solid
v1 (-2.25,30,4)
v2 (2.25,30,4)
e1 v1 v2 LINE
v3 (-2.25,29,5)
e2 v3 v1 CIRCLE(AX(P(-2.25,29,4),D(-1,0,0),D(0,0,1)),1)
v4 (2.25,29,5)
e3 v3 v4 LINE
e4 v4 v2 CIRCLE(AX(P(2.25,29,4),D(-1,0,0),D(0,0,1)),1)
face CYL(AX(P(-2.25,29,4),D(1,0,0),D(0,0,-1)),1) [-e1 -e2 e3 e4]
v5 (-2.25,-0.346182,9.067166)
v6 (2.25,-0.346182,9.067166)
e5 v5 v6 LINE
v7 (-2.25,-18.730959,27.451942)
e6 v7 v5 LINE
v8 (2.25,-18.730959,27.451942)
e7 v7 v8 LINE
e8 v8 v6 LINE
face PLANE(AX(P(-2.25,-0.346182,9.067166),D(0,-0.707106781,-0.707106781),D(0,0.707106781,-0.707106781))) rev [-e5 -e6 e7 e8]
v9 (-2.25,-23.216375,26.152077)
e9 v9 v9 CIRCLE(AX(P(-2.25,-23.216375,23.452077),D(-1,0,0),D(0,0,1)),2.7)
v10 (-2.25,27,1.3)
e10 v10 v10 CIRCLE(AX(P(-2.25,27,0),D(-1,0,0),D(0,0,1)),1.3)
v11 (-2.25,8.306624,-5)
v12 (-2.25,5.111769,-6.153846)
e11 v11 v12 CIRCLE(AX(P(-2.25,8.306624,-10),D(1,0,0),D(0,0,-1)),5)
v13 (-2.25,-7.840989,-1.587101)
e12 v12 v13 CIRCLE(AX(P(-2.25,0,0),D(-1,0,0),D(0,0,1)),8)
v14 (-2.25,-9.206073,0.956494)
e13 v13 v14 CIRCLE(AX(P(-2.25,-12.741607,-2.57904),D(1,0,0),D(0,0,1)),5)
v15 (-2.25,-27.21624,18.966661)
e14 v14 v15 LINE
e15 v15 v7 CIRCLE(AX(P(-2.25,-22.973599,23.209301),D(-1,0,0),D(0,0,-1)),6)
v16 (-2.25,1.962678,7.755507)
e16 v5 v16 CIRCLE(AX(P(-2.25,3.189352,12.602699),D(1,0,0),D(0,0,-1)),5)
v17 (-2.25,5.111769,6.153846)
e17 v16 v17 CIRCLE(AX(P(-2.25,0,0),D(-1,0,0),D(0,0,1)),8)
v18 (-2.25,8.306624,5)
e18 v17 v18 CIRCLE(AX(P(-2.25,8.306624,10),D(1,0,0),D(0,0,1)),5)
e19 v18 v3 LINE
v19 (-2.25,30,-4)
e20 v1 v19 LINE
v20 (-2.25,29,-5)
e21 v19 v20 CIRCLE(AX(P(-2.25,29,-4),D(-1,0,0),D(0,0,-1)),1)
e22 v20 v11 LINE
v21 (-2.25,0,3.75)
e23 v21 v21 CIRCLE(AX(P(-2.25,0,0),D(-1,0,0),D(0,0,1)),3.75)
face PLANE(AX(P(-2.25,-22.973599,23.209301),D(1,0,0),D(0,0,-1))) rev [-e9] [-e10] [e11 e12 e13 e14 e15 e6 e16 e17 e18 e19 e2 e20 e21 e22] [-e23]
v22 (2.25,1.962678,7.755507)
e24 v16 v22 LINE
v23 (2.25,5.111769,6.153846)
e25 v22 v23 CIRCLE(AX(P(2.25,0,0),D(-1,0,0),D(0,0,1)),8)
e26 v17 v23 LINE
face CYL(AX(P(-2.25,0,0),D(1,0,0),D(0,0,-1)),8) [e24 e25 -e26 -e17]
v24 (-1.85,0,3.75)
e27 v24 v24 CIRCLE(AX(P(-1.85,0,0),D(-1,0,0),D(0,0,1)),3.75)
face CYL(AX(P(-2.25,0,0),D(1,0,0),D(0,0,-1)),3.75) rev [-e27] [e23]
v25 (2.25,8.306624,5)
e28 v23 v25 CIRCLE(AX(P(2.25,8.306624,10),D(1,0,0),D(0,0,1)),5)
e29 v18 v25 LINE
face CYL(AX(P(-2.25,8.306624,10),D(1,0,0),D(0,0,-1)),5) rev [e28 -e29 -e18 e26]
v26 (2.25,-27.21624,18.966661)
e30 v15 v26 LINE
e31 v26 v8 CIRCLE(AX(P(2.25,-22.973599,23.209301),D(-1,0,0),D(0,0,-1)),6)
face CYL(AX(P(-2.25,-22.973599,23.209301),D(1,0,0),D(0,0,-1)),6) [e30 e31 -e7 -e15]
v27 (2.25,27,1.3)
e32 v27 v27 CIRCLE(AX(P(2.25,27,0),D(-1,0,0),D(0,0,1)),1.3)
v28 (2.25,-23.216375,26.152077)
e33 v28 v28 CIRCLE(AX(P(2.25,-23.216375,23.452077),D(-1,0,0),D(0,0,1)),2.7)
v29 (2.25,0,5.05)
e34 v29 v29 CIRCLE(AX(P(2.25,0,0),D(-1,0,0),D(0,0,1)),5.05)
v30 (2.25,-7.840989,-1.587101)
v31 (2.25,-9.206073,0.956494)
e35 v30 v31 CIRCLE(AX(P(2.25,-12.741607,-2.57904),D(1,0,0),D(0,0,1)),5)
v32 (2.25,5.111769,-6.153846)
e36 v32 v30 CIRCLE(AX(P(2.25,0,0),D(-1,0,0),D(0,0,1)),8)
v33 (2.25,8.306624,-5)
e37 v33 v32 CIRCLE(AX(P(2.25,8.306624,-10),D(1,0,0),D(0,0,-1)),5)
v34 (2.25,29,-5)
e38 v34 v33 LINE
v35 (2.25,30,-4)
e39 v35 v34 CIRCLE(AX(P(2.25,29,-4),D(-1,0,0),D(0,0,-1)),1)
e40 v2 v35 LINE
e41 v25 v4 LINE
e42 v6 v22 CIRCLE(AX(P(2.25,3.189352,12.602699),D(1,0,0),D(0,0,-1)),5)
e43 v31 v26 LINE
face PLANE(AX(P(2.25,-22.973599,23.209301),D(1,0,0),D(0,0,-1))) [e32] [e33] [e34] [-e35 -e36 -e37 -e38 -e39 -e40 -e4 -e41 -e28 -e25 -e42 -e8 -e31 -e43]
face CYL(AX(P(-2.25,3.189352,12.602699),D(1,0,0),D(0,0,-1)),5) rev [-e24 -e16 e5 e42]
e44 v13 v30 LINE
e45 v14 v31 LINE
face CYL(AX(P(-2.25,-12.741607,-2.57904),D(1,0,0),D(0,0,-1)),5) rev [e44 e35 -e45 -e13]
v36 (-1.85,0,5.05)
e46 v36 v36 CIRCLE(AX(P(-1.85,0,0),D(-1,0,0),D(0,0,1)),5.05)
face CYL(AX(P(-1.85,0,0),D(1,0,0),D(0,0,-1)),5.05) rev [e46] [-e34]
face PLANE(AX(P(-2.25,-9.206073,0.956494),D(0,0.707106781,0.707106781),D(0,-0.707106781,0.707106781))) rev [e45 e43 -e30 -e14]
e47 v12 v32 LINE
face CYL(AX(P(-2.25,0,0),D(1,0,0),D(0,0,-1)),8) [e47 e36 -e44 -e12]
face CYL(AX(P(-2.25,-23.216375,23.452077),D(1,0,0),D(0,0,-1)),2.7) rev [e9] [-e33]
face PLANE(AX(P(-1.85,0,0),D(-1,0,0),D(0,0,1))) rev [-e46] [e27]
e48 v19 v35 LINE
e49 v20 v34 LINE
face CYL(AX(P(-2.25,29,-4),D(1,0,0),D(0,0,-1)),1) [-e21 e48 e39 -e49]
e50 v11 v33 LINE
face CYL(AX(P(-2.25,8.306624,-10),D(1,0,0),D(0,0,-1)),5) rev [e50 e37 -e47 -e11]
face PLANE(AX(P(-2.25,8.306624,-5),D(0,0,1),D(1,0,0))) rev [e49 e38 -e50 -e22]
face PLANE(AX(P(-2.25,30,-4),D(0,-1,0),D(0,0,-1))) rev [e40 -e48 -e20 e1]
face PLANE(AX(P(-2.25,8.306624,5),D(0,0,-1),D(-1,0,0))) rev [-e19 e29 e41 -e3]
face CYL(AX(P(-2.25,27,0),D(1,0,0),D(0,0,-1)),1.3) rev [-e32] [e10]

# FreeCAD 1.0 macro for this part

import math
import FreeCAD as App
import Part
import Sketcher

V = App.Vector
Q = App.Units.Quantity

doc = App.newDocument("Part")
params = doc.addObject("Spreadsheet::Sheet", "Params")
for row, (alias, value) in enumerate([
    ("sketch1_radius", "1 mm"),
    ("sketch1_radius2", "5 mm"),
    ("sketch1_radius3", "8 mm"),
    ("sketch1_radius4", "6 mm"),
    ("sketch1_diameter", "5.4 mm"),
    ("pad1_length", "4.5 mm"),
    ("sketch2_diameter", "10.1 mm"),
    ("pocket1_length", "4.1 mm"),
], start=1):
    params.set(f"A{row}", alias)
    params.set(f"B{row}", "=" + value)
    params.setAlias(f"B{row}", alias)

body = doc.addObject("PartDesign::Body", "Body")

sketch1 = body.newObject("Sketcher::SketchObject", "Sketch")
sketch1.AttachmentSupport = (doc.getObject("YZ_Plane"), [""])
sketch1.MapMode = "FlatFace"
sketch1.addGeometry(Part.LineSegment(V(30, 4, 0), V(30, -4, 0)), False)
sketch1.addGeometry(Part.ArcOfCircle(Part.Circle(V(29, -4, 0), V(0, 0, 1), 1), math.radians(-90), math.radians(0)), False)
sketch1.addGeometry(Part.LineSegment(V(29, -5, 0), V(8.3, -5, 0)), False)
sketch1.addGeometry(Part.ArcOfCircle(Part.Circle(V(8.3, -10, 0), V(0, 0, 1), 5), math.radians(90), math.radians(130)), False)
sketch1.addGeometry(Part.ArcOfCircle(Part.Circle(V(0, 0, 0), V(0, 0, 1), 8), math.radians(-169), math.radians(-50)), False)
sketch1.addGeometry(Part.ArcOfCircle(Part.Circle(V(-12.7, -2.6, 0), V(0, 0, 1), 5), math.radians(11), math.radians(45)), False)
sketch1.addGeometry(Part.LineSegment(V(-9.2, 1, 0), V(-27.2, 19, 0)), False)
sketch1.addGeometry(Part.ArcOfCircle(Part.Circle(V(-23, 23.2, 0), V(0, 0, 1), 6), math.radians(45), math.radians(225)), False)
sketch1.addGeometry(Part.LineSegment(V(-18.7, 27.5, 0), V(-0.3, 9.1, 0)), False)
sketch1.addGeometry(Part.ArcOfCircle(Part.Circle(V(3.2, 12.6, 0), V(0, 0, 1), 5), math.radians(-135), math.radians(-104)), False)
sketch1.addGeometry(Part.ArcOfCircle(Part.Circle(V(0, 0, 0), V(0, 0, 1), 8), math.radians(50), math.radians(76)), False)
sketch1.addGeometry(Part.ArcOfCircle(Part.Circle(V(8.3, 10, 0), V(0, 0, 1), 5), math.radians(-130), math.radians(-90)), False)
sketch1.addGeometry(Part.LineSegment(V(8.3, 5, 0), V(29, 5, 0)), False)
sketch1.addGeometry(Part.ArcOfCircle(Part.Circle(V(29, 4, 0), V(0, 0, 1), 1), math.radians(0), math.radians(90)), False)
sketch1.addGeometry(Part.Circle(V(-23.2, 23.5, 0), V(0, 0, 1), 2.7), False)
sketch1.addGeometry(Part.Circle(V(0, 0, 0), V(0, 0, 1), 3.8), False)
sketch1.addGeometry(Part.Circle(V(27, 0, 0), V(0, 0, 1), 1.3), False)
sketch1.addConstraint(Sketcher.Constraint("Tangent", 0, 2, 1, 2))
sketch1.addConstraint(Sketcher.Constraint("Tangent", 1, 1, 2, 1))
sketch1.addConstraint(Sketcher.Constraint("Tangent", 2, 2, 3, 1))
sketch1.addConstraint(Sketcher.Constraint("Tangent", 3, 2, 4, 2))
sketch1.addConstraint(Sketcher.Constraint("Tangent", 4, 1, 5, 1))
sketch1.addConstraint(Sketcher.Constraint("Tangent", 5, 2, 6, 1))
sketch1.addConstraint(Sketcher.Constraint("Tangent", 6, 2, 7, 2))
sketch1.addConstraint(Sketcher.Constraint("Tangent", 7, 1, 8, 1))
sketch1.addConstraint(Sketcher.Constraint("Tangent", 8, 2, 9, 1))
sketch1.addConstraint(Sketcher.Constraint("Tangent", 9, 2, 10, 2))
sketch1.addConstraint(Sketcher.Constraint("Tangent", 10, 1, 11, 1))
sketch1.addConstraint(Sketcher.Constraint("Tangent", 11, 2, 12, 1))
sketch1.addConstraint(Sketcher.Constraint("Tangent", 12, 2, 13, 2))
sketch1.addConstraint(Sketcher.Constraint("Tangent", 13, 1, 0, 1))
sketch1.addConstraint(Sketcher.Constraint("Vertical", 0))
sketch1.addConstraint(Sketcher.Constraint("Horizontal", 2))
sketch1.addConstraint(Sketcher.Constraint("Horizontal", 12))
sketch1.addConstraint(Sketcher.Constraint("Coincident", 4, 3, -1, 1))
sketch1.addConstraint(Sketcher.Constraint("Coincident", 10, 3, -1, 1))
sketch1.addConstraint(Sketcher.Constraint("Coincident", 15, 3, -1, 1))
sketch1.addConstraint(Sketcher.Constraint("Equal", 3, 5))
sketch1.addConstraint(Sketcher.Constraint("Equal", 5, 9))
sketch1.addConstraint(Sketcher.Constraint("Equal", 4, 10))
sketch1.addConstraint(Sketcher.Constraint("Equal", 9, 11))
sketch1.addConstraint(Sketcher.Constraint("Equal", 1, 13))
sketch1.addConstraint(Sketcher.Constraint("PointOnObject", 16, 3, -1))
sketch1.addConstraint(Sketcher.Constraint("Parallel", 6, 8))
sketch1.addConstraint(Sketcher.Constraint("Vertical", 3, 3, 11, 3))
sketch1.addConstraint(Sketcher.Constraint("Radius", 1, 1.0))
sketch1.addConstraint(Sketcher.Constraint("Radius", 3, 5.0))
sketch1.addConstraint(Sketcher.Constraint("Radius", 4, 8.0))
sketch1.addConstraint(Sketcher.Constraint("Radius", 7, 6.0))
sketch1.addConstraint(Sketcher.Constraint("Diameter", 14, 5.4))
sketch1.addConstraint(Sketcher.Constraint("Diameter", 15, 7.5))
sketch1.addConstraint(Sketcher.Constraint("Diameter", 16, 2.6))
sketch1.addConstraint(Sketcher.Constraint("DistanceY", 0, 2, 0, 1, 8.0))
sketch1.addConstraint(Sketcher.Constraint("Angle", 6, Q("135 deg")))
sketch1.addConstraint(Sketcher.Constraint("Distance", 8, 26.0))
sketch1.addConstraint(Sketcher.Constraint("DistanceX", -1, 1, 1, 3, 29.0))
sketch1.addConstraint(Sketcher.Constraint("DistanceX", -1, 1, 16, 3, 27.0))
sketch1.addConstraint(Sketcher.Constraint("DistanceX", 7, 3, -1, 1, 22.973599))
sketch1.addConstraint(Sketcher.Constraint("DistanceX", 14, 3, -1, 1, 23.216375))
sketch1.addConstraint(Sketcher.Constraint("DistanceY", -1, 1, 14, 3, 23.452077))
sketch1.setExpression("Constraints[28]", "Params.sketch1_radius")
sketch1.setExpression("Constraints[29]", "Params.sketch1_radius2")
sketch1.setExpression("Constraints[30]", "Params.sketch1_radius3")
sketch1.setExpression("Constraints[31]", "Params.sketch1_radius4")
sketch1.setExpression("Constraints[32]", "Params.sketch1_diameter")
pad1 = body.newObject("PartDesign::Pad", "Pad")
pad1.Profile = sketch1
pad1.setExpression("Length", "Params.pad1_length")
pad1.Midplane = True

sketch2 = body.newObject("Sketcher::SketchObject", "Sketch001")
sketch2.AttachmentSupport = (doc.getObject("YZ_Plane"), [""])
sketch2.MapMode = "FlatFace"
sketch2.AttachmentOffset = App.Placement(V(0, 0, 2.25), App.Rotation())
sketch2.addGeometry(Part.Circle(V(0, 0, 0), V(0, 0, 1), 5), False)
sketch2.addConstraint(Sketcher.Constraint("Coincident", 0, 3, -1, 1))
sketch2.addConstraint(Sketcher.Constraint("Diameter", 0, 10.1))
sketch2.setExpression("Constraints[1]", "Params.sketch2_diameter")
pocket1 = body.newObject("PartDesign::Pocket", "Pocket")
pocket1.Profile = sketch2
pocket1.setExpression("Length", "Params.pocket1_length")

doc.recompute()
